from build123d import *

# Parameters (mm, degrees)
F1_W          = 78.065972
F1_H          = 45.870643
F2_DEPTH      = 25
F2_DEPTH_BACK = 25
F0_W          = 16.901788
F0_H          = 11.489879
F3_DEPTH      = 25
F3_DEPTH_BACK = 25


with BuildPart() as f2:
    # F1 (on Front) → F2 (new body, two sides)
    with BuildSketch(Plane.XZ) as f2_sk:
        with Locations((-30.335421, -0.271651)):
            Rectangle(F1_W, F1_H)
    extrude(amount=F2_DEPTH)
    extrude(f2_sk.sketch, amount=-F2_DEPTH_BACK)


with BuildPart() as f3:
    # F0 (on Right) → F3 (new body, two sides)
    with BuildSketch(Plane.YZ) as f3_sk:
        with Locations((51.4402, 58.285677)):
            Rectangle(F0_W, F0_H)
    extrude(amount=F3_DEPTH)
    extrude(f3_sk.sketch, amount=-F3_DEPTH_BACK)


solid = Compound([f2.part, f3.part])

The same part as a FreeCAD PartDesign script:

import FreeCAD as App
import Part
import Sketcher
Q = App.Units.Quantity

doc = App.newDocument("Part")
body = doc.addObject("PartDesign::Body", "Body")

# Sketch on XZ plane
sketch1 = body.newObject("Sketcher::SketchObject", "Sketch")
sketch1.AttachmentSupport = (doc.getObject("XZ_Plane"), [""])
sketch1.MapMode = "FlatFace"
sketch1.addGeometry([
    Part.LineSegment(App.Vector(-69, 23, 0), App.Vector(-69, -23, 0)),
    Part.LineSegment(App.Vector(-69, -23, 0), App.Vector(9, -23, 0)),
    Part.LineSegment(App.Vector(9, -23, 0), App.Vector(9, 23, 0)),
    Part.LineSegment(App.Vector(9, 23, 0), App.Vector(-69, 23, 0)),
], False)
sketch1.addConstraint([
    Sketcher.Constraint("Coincident", 0, 2, 1, 1),
    Sketcher.Constraint("Coincident", 1, 2, 2, 1),
    Sketcher.Constraint("Coincident", 2, 2, 3, 1),
    Sketcher.Constraint("Coincident", 3, 2, 0, 1),
    Sketcher.Constraint("Vertical", 0),
    Sketcher.Constraint("Horizontal", 1),
    Sketcher.Constraint("Vertical", 2),
    Sketcher.Constraint("Horizontal", 3),
    Sketcher.Constraint("DistanceX", 1, 1, 1, 2, Q("78.065972 mm")),
    Sketcher.Constraint("DistanceY", 0, 2, 0, 1, Q("45.870643 mm")),
    Sketcher.Constraint("DistanceY", -1, 1, 2, 2, Q("22.66367 mm")),
    Sketcher.Constraint("DistanceX", 0, 2, -1, 1, Q("69.368407 mm")),
])
pad1 = body.newObject("PartDesign::Pad", "Pad")
pad1.Profile = sketch1
pad1.Type = "TwoLengths"
pad1.Length = 25
pad1.Length2 = 25
body2 = doc.addObject("PartDesign::Body", "Body001")

# Sketch on YZ plane
sketch2 = body2.newObject("Sketcher::SketchObject", "Sketch001")
sketch2.AttachmentSupport = (doc.getObject("YZ_Plane001"), [""])
sketch2.MapMode = "FlatFace"
sketch2.addGeometry([
    Part.LineSegment(App.Vector(43, 64, 0), App.Vector(43, 53, 0)),
    Part.LineSegment(App.Vector(43, 53, 0), App.Vector(60, 53, 0)),
    Part.LineSegment(App.Vector(60, 53, 0), App.Vector(60, 64, 0)),
    Part.LineSegment(App.Vector(60, 64, 0), App.Vector(43, 64, 0)),
], False)
sketch2.addConstraint([
    Sketcher.Constraint("Coincident", 0, 2, 1, 1),
    Sketcher.Constraint("Coincident", 1, 2, 2, 1),
    Sketcher.Constraint("Coincident", 2, 2, 3, 1),
    Sketcher.Constraint("Coincident", 3, 2, 0, 1),
    Sketcher.Constraint("Vertical", 0),
    Sketcher.Constraint("Horizontal", 1),
    Sketcher.Constraint("Vertical", 2),
    Sketcher.Constraint("Horizontal", 3),
    Sketcher.Constraint("DistanceX", 1, 1, 1, 2, Q("16.901788 mm")),
    Sketcher.Constraint("DistanceY", 0, 2, 0, 1, Q("11.489879 mm")),
    Sketcher.Constraint("DistanceX", -1, 1, 0, 2, Q("42.989306 mm")),
    Sketcher.Constraint("DistanceY", -1, 1, 0, 2, Q("52.540737 mm")),
])
pad2 = body2.newObject("PartDesign::Pad", "Pad001")
pad2.Profile = sketch2
pad2.Type = "TwoLengths"
pad2.Length = 25
pad2.Length2 = 25

doc.recompute()
